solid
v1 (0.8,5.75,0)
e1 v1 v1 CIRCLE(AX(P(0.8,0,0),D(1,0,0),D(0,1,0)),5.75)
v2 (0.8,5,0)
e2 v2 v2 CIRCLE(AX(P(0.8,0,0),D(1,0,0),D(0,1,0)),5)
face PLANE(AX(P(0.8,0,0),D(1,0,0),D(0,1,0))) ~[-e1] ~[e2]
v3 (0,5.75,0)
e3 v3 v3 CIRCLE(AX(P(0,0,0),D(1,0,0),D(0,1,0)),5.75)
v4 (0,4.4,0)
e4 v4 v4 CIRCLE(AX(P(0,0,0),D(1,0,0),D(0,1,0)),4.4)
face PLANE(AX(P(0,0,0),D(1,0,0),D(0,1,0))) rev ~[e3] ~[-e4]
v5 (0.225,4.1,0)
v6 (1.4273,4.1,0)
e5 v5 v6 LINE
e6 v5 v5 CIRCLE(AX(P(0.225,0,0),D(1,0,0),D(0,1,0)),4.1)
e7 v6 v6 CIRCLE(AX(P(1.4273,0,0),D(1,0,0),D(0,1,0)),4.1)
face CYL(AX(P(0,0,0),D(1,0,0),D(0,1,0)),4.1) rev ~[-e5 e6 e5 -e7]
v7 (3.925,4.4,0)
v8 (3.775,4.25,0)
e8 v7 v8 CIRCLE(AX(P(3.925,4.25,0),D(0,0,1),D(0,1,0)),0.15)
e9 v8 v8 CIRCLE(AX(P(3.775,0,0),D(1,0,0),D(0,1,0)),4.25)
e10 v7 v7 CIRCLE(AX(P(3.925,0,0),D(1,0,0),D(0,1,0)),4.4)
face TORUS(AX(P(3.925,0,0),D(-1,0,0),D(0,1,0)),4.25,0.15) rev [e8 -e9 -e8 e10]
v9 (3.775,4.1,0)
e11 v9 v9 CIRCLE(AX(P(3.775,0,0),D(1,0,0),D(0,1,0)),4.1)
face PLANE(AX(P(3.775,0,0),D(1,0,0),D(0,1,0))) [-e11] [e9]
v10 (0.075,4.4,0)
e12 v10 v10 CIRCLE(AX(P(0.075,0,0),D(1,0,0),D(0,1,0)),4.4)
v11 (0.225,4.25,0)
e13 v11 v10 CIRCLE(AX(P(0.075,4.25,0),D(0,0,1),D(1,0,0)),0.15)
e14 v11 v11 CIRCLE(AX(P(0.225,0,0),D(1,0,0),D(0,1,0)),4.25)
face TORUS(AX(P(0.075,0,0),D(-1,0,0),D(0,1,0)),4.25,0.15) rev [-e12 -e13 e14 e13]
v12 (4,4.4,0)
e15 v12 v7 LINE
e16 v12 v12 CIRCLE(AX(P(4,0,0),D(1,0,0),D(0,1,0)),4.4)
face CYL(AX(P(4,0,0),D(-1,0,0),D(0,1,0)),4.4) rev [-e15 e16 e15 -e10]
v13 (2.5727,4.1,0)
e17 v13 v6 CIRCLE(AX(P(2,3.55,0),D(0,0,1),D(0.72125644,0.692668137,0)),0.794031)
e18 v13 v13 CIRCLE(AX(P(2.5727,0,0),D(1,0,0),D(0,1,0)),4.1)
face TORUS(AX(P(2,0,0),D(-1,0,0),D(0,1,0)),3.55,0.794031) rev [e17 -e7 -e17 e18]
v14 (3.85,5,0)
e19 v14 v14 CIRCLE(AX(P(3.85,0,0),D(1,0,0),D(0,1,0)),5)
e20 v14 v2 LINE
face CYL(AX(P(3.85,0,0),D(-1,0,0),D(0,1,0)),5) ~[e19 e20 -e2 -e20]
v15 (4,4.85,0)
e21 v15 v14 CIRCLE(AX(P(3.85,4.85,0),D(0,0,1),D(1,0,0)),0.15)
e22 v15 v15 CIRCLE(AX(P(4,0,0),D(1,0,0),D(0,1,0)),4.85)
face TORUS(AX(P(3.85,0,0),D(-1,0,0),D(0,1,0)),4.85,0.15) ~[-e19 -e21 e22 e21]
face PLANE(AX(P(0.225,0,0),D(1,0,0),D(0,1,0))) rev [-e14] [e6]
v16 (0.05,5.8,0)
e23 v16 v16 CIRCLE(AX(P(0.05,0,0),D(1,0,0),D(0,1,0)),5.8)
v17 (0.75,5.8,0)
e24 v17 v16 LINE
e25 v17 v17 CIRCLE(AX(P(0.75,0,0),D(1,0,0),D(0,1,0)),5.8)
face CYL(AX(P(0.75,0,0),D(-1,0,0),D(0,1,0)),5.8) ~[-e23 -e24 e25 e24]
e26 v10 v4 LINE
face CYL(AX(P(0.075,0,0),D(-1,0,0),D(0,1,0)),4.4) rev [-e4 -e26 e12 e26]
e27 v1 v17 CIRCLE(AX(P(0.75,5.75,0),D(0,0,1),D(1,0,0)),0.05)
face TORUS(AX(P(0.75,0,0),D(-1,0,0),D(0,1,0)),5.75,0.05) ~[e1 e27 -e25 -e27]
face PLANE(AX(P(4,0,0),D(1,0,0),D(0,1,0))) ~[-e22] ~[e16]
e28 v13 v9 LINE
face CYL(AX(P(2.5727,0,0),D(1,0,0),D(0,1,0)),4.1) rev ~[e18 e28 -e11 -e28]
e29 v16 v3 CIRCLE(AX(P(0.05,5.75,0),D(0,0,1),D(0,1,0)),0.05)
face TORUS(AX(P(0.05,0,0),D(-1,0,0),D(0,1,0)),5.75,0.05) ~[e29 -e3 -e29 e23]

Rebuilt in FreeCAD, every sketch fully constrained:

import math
import FreeCAD as App
import Part
import Sketcher

doc = App.newDocument("Part")
body = doc.addObject("PartDesign::Body", "Body")

# Sketch on XY plane
sketch1 = body.newObject("Sketcher::SketchObject", "Sketch")
sketch1.AttachmentSupport = (doc.getObject("XY_Plane"), [""])
sketch1.MapMode = "FlatFace"
sketch1.addGeometry([
    Part.ArcOfCircle(Part.Circle(App.Vector(0.05, 5.75, 0), App.Vector(0, 0, 1), 0.05), math.radians(90), math.radians(180)),  # 0
    Part.LineSegment(App.Vector(0, 5.75, 0), App.Vector(0, 4.1, 0)),  # 1
    Part.LineSegment(App.Vector(0, 4.1, 0), App.Vector(1.427, 4.1, 0)),  # 2
    Part.ArcOfCircle(Part.Circle(App.Vector(2, 3.55, 0), App.Vector(0, 0, 1), 0.794), math.radians(44), math.radians(136)),  # 3
    Part.LineSegment(App.Vector(2.573, 4.1, 0), App.Vector(4, 4.1, 0)),  # 4
    Part.LineSegment(App.Vector(4, 4.1, 0), App.Vector(4, 4.85, 0)),  # 5
    Part.ArcOfCircle(Part.Circle(App.Vector(3.85, 4.85, 0), App.Vector(0, 0, 1), 0.15), math.radians(0), math.radians(90)),  # 6
    Part.LineSegment(App.Vector(3.85, 5, 0), App.Vector(0.8, 5, 0)),  # 7
    Part.LineSegment(App.Vector(0.8, 5, 0), App.Vector(0.8, 5.75, 0)),  # 8
    Part.ArcOfCircle(Part.Circle(App.Vector(0.75, 5.75, 0), App.Vector(0, 0, 1), 0.05), math.radians(0), math.radians(90)),  # 9
    Part.LineSegment(App.Vector(0.75, 5.8, 0), App.Vector(0.05, 5.8, 0)),  # 10
], False)
sketch1.addConstraint([
    Sketcher.Constraint("Tangent", 0, 2, 1, 1),
    Sketcher.Constraint("Coincident", 1, 2, 2, 1),
    Sketcher.Constraint("Coincident", 2, 2, 3, 2),
    Sketcher.Constraint("Coincident", 3, 1, 4, 1),
    Sketcher.Constraint("Coincident", 4, 2, 5, 1),
    Sketcher.Constraint("Tangent", 5, 2, 6, 1),
    Sketcher.Constraint("Tangent", 6, 2, 7, 1),
    Sketcher.Constraint("Coincident", 7, 2, 8, 1),
    Sketcher.Constraint("Tangent", 8, 2, 9, 1),
    Sketcher.Constraint("Tangent", 9, 2, 10, 1),
    Sketcher.Constraint("Tangent", 10, 2, 0, 1),
    Sketcher.Constraint("Vertical", 1),
    Sketcher.Constraint("Horizontal", 2),
    Sketcher.Constraint("Horizontal", 4),
    Sketcher.Constraint("Vertical", 5),
    Sketcher.Constraint("Horizontal", 7),
    Sketcher.Constraint("Vertical", 8),
    Sketcher.Constraint("Horizontal", 10),
    Sketcher.Constraint("Equal", 0, 9),
    Sketcher.Constraint("PointOnObject", 0, 2, -2),
    Sketcher.Constraint("Horizontal", 2, 2, 3, 1),
    Sketcher.Constraint("Equal", 2, 4),
    Sketcher.Constraint("Equal", 5, 8),
    Sketcher.Constraint("Radius", 0, 0.05),
    Sketcher.Constraint("Radius", 6, 0.15),
    Sketcher.Constraint("DistanceX", 10, 2, 10, 1, 0.7),
    Sketcher.Constraint("DistanceX", -1, 1, 3, 3, 2.0),
    Sketcher.Constraint("DistanceY", -1, 1, 6, 2, 5.0),
    Sketcher.Constraint("Radius", 3, 0.794),
    Sketcher.Constraint("DistanceY", 1, 2, 1, 1, 1.65),
    Sketcher.Constraint("DistanceY", 3, 3, 0, 3, 2.2),
])
revolution = body.newObject("PartDesign::Revolution", "Revolution")
revolution.Profile = sketch1
revolution.ReferenceAxis = (sketch1, ["H_Axis"])
revolution.Angle = 360

# Sketch on XY plane
sketch2 = body.newObject("Sketcher::SketchObject", "Sketch001")
sketch2.AttachmentSupport = (doc.getObject("XY_Plane"), [""])
sketch2.MapMode = "FlatFace"
sketch2.addGeometry([
    Part.LineSegment(App.Vector(0, 4.4, 0), App.Vector(0, 2.2, 0)),  # 0
    Part.LineSegment(App.Vector(0, 2.2, 0), App.Vector(4, 2.2, 0)),  # 1
    Part.LineSegment(App.Vector(4, 2.2, 0), App.Vector(4, 4.4, 0)),  # 2
    Part.LineSegment(App.Vector(4, 4.4, 0), App.Vector(3.92, 4.4, 0)),  # 3
    Part.ArcOfCircle(Part.Circle(App.Vector(3.92, 4.25, 0), App.Vector(0, 0, 1), 0.15), math.radians(90), math.radians(180)),  # 4
    Part.LineSegment(App.Vector(3.77, 4.25, 0), App.Vector(3.77, 2.35, 0)),  # 5
    Part.LineSegment(App.Vector(3.77, 2.35, 0), App.Vector(0.23, 2.35, 0)),  # 6
    Part.LineSegment(App.Vector(0.23, 2.35, 0), App.Vector(0.23, 4.25, 0)),  # 7
    Part.ArcOfCircle(Part.Circle(App.Vector(0.07, 4.25, 0), App.Vector(0, 0, 1), 0.15), math.radians(0), math.radians(90)),  # 8
    Part.LineSegment(App.Vector(0.07, 4.4, 0), App.Vector(0, 4.4, 0)),  # 9
], False)
sketch2.addConstraint([
    Sketcher.Constraint("Coincident", 0, 2, 1, 1),
    Sketcher.Constraint("Coincident", 1, 2, 2, 1),
    Sketcher.Constraint("Coincident", 2, 2, 3, 1),
    Sketcher.Constraint("Tangent", 3, 2, 4, 1),
    Sketcher.Constraint("Tangent", 4, 2, 5, 1),
    Sketcher.Constraint("Coincident", 5, 2, 6, 1),
    Sketcher.Constraint("Coincident", 6, 2, 7, 1),
    Sketcher.Constraint("Tangent", 7, 2, 8, 1),
    Sketcher.Constraint("Tangent", 8, 2, 9, 1),
    Sketcher.Constraint("Coincident", 9, 2, 0, 1),
    Sketcher.Constraint("Vertical", 0),
    Sketcher.Constraint("Horizontal", 1),
    Sketcher.Constraint("Vertical", 2),
    Sketcher.Constraint("Horizontal", 3),
    Sketcher.Constraint("Vertical", 5),
    Sketcher.Constraint("Horizontal", 6),
    Sketcher.Constraint("Vertical", 7),
    Sketcher.Constraint("Horizontal", 9),
    Sketcher.Constraint("Equal", 4, 8),
    Sketcher.Constraint("PointOnObject", 0, 2, -2),
    Sketcher.Constraint("Horizontal", 4, 3, 8, 3),
    Sketcher.Constraint("Equal", 3, 9),
    Sketcher.Constraint("DistanceX", 1, 1, 1, 2, 4.0),
    Sketcher.Constraint("Radius", 4, 0.15),
    Sketcher.Constraint("DistanceY", 0, 2, 0, 1, 2.2),
    Sketcher.Constraint("DistanceY", 5, 2, 5, 1, 1.9),
    Sketcher.Constraint("DistanceX", 6, 2, 6, 1, 3.55),
    Sketcher.Constraint("DistanceY", -1, 1, 0, 2, 2.2),
])
groove = body.newObject("PartDesign::Groove", "Groove")
groove.Profile = sketch2
groove.ReferenceAxis = (sketch2, ["H_Axis"])
groove.Angle = 360

doc.recompute()
